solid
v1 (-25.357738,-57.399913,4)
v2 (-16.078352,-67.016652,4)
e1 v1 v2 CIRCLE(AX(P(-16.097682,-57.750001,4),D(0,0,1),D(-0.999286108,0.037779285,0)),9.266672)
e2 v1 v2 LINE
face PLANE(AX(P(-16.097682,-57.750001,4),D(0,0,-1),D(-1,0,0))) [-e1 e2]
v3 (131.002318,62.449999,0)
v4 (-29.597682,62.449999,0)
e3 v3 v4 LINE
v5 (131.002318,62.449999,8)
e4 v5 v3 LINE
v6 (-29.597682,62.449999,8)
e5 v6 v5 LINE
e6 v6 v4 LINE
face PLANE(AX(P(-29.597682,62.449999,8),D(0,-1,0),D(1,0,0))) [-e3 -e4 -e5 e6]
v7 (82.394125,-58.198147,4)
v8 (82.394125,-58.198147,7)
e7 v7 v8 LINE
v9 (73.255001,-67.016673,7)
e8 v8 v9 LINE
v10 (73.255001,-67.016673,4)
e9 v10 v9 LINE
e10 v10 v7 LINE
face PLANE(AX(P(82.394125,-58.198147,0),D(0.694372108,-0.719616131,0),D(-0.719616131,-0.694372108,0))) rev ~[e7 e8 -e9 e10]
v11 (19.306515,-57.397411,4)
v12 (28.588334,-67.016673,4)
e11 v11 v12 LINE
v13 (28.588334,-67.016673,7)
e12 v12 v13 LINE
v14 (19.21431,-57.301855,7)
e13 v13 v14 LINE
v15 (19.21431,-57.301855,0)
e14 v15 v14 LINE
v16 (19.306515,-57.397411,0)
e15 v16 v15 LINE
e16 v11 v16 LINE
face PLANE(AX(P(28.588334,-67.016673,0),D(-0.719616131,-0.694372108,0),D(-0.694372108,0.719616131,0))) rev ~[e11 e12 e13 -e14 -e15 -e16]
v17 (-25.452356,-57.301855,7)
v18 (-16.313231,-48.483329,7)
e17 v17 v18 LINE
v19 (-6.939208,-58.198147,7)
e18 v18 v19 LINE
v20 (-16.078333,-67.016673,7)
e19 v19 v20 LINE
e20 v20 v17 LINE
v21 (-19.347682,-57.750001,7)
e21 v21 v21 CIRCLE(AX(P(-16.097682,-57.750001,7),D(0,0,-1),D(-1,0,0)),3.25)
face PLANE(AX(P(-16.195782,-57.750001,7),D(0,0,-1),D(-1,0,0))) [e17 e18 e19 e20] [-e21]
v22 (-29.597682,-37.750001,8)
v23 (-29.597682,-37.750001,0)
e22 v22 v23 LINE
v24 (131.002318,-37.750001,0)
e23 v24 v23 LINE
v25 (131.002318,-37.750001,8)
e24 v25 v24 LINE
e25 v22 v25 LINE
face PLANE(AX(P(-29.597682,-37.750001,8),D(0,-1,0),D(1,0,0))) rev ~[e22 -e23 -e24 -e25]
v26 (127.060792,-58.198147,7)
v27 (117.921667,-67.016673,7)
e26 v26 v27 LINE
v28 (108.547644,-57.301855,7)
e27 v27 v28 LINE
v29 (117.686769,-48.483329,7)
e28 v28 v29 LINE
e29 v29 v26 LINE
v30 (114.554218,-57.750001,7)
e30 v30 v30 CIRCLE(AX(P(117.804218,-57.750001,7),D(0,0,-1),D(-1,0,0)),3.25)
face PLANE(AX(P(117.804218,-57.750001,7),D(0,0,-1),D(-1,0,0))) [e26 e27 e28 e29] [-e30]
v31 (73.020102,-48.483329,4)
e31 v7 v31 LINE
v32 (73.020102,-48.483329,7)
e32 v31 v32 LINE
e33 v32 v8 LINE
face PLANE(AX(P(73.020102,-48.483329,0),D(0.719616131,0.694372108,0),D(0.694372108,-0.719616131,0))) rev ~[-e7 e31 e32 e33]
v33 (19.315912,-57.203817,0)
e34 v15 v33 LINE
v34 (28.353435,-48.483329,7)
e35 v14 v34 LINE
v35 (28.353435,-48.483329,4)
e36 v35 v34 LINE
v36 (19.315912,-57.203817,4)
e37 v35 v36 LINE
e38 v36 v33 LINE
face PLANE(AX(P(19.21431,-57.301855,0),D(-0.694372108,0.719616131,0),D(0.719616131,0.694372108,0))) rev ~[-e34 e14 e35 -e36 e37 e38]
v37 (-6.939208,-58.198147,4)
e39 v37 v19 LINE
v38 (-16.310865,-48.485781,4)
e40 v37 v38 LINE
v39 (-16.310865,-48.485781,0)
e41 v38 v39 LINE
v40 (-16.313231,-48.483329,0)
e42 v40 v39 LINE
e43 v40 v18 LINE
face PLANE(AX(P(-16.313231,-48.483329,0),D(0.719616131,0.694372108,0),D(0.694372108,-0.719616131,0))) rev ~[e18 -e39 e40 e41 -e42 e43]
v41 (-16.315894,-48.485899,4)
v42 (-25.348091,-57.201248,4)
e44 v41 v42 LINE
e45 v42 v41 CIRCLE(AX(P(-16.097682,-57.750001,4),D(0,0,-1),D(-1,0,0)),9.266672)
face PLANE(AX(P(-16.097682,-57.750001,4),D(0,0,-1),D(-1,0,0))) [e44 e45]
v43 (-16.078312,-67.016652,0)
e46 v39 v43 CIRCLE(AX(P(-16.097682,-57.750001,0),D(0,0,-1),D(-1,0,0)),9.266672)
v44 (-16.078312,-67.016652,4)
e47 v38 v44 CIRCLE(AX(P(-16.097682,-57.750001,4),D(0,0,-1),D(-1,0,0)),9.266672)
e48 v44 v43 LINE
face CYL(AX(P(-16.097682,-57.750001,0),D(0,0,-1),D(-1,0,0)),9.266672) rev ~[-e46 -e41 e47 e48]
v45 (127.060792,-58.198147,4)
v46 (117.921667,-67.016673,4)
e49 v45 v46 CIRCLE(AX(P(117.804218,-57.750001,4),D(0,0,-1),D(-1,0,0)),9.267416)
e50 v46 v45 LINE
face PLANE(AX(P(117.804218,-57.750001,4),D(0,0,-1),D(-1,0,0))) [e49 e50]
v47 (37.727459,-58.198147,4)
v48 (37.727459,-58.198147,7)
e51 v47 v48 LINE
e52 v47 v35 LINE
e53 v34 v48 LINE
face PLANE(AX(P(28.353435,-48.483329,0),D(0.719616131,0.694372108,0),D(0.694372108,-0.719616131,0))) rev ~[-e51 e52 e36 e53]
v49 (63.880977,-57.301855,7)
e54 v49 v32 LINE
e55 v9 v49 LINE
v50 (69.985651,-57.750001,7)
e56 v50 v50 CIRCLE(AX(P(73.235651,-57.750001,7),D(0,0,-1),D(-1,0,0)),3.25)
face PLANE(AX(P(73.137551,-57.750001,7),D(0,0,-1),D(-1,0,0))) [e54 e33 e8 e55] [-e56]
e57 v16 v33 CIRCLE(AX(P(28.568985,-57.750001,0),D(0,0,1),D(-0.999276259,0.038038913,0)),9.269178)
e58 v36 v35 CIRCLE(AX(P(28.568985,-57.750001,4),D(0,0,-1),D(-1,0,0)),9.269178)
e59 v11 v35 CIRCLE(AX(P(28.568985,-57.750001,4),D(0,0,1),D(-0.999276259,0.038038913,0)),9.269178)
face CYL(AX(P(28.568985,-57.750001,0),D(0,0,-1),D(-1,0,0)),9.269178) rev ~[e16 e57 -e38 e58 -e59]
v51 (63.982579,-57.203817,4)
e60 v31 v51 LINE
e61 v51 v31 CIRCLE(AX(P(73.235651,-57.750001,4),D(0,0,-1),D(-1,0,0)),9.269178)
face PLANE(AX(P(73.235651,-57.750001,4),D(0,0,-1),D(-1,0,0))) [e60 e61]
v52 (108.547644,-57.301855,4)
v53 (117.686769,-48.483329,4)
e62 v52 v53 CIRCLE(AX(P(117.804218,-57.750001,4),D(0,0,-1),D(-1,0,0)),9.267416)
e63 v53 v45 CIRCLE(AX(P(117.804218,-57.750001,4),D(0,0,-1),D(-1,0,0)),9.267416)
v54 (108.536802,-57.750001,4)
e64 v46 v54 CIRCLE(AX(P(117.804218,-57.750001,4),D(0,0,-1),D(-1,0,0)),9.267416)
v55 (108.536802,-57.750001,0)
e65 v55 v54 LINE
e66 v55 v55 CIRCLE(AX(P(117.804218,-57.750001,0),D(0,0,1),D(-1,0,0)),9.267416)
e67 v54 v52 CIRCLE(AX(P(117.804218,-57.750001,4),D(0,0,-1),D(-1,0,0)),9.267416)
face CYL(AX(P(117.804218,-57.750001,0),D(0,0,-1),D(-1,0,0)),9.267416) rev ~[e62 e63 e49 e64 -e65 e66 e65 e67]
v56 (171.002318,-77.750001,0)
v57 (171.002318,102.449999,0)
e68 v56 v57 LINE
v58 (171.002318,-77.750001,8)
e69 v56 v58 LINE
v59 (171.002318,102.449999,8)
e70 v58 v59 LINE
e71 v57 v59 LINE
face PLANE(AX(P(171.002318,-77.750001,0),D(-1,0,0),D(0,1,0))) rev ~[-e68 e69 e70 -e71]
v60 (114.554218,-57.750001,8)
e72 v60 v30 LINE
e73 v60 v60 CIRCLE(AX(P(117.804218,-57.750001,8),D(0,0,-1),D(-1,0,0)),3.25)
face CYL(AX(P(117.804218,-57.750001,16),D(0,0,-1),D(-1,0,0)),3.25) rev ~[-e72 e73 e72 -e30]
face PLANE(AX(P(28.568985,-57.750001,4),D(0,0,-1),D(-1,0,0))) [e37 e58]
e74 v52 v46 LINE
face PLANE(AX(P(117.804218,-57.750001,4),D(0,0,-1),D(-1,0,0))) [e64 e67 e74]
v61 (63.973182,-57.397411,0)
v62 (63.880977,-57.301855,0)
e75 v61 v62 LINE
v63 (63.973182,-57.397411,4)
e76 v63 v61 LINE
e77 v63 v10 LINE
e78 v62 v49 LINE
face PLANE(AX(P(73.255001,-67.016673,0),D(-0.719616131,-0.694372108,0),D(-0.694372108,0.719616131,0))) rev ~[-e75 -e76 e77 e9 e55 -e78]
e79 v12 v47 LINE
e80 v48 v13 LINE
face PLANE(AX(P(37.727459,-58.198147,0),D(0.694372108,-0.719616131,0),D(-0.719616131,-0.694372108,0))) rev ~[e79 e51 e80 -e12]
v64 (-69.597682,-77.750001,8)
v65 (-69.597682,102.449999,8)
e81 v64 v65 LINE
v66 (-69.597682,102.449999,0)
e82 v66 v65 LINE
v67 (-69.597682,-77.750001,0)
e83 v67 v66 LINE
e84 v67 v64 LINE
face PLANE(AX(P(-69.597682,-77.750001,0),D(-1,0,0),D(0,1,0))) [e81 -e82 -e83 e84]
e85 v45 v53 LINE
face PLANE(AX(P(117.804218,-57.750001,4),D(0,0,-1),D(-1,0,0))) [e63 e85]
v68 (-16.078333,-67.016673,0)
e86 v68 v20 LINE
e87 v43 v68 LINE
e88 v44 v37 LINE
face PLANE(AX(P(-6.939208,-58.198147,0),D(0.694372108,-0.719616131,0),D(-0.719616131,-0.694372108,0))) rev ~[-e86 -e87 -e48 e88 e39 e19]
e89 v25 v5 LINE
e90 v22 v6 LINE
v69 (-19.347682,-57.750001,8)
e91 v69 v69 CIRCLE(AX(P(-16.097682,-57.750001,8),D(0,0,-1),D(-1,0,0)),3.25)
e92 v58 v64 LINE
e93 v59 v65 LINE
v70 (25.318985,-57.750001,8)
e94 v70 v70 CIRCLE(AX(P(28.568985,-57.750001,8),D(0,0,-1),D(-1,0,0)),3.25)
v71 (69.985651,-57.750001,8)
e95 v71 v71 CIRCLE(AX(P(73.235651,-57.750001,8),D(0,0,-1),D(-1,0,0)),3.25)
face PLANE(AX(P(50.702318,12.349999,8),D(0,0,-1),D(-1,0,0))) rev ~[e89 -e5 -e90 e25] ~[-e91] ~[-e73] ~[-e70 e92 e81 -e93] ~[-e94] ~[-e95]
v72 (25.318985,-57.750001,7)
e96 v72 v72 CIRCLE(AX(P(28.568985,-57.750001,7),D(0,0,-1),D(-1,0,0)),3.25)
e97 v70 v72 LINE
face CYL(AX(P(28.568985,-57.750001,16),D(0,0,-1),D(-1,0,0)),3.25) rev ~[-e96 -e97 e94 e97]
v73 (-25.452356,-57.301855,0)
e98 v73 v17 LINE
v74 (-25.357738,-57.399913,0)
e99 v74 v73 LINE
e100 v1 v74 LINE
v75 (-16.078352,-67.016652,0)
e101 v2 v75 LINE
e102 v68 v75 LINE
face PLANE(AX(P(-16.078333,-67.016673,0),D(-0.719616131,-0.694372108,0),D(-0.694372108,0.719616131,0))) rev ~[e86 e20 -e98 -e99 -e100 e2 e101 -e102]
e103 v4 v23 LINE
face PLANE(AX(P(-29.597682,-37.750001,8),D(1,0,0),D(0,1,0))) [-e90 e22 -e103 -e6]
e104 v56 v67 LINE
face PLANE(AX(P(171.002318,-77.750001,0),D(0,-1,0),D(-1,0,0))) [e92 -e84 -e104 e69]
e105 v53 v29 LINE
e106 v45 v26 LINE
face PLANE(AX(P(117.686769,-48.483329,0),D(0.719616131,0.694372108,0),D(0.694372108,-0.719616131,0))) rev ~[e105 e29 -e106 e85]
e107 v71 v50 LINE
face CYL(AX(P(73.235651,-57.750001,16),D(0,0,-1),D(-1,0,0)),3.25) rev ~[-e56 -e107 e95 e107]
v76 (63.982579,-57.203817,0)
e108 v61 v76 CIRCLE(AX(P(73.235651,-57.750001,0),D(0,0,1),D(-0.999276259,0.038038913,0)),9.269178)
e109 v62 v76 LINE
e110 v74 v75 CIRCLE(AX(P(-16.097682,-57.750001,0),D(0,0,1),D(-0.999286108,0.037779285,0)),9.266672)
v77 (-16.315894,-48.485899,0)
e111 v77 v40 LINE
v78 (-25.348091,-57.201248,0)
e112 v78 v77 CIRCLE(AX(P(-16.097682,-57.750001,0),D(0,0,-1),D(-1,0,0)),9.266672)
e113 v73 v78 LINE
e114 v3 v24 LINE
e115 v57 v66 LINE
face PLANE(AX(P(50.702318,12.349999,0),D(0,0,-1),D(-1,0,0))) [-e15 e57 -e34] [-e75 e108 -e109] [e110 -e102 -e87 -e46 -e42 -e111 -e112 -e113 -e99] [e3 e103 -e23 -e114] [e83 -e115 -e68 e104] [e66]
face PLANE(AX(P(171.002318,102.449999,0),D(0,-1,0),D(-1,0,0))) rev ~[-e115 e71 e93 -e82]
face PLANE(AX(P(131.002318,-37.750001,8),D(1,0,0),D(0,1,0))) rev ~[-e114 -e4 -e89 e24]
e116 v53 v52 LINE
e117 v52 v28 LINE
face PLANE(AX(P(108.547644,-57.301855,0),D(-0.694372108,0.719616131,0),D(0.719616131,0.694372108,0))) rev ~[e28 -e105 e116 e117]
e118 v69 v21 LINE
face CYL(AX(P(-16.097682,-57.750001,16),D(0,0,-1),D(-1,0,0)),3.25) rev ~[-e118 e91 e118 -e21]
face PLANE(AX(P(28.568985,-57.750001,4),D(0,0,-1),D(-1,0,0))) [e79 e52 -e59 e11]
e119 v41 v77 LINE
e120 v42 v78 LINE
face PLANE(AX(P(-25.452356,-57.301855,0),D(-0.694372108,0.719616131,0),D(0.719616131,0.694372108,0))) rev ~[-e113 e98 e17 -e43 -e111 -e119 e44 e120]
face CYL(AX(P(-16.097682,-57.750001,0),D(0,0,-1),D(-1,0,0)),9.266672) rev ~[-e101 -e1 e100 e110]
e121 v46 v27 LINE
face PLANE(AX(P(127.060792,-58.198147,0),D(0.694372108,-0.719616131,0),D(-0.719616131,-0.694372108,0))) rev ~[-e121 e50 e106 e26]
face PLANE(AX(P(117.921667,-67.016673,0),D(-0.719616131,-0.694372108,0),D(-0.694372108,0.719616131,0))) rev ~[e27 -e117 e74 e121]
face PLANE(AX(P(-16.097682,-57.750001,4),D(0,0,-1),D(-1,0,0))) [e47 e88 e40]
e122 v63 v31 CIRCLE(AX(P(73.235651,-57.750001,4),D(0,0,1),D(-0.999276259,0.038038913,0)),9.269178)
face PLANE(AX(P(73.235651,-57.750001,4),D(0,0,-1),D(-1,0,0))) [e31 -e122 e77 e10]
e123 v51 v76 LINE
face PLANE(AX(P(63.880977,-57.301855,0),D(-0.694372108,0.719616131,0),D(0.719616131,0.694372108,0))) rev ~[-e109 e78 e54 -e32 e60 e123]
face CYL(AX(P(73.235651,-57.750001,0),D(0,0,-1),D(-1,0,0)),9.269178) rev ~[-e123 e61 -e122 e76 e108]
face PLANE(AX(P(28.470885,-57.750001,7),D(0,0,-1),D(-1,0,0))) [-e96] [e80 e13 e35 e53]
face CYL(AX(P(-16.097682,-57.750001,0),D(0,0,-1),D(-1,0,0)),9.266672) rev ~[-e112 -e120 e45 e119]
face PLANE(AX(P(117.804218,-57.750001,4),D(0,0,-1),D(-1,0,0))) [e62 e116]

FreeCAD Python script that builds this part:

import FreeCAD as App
import Part
import Sketcher
from FreeCAD import Vector
Q = App.Units.Quantity


def add_polygon(sketch, points):
    """Adds a closed chain of lines whose ends are joined by coincident constraints."""
    first, n = sketch.GeometryCount, len(points)
    for a, b in zip(points, points[1:] + points[:1]):
        sketch.addGeometry(Part.LineSegment(App.Vector(*a, 0), App.Vector(*b, 0)), False)
    for i in range(n):
        sketch.addConstraint(Sketcher.Constraint("Coincident", first + i, 2, first + (i + 1) % n, 1))

doc = App.newDocument("Part")
body = doc.addObject("PartDesign::Body", "Body")

sketch1 = body.newObject("Sketcher::SketchObject", "Sketch")
sketch1.AttachmentSupport = (doc.getObject("XY_Plane"), [""])
sketch1.MapMode = "FlatFace"
add_polygon(sketch1, [(171, 102), (171, -78), (-70, -78), (-70, 102)])
sketch1.addConstraint([
    Sketcher.Constraint("Vertical", 0),
    Sketcher.Constraint("Horizontal", 1),
    Sketcher.Constraint("Vertical", 2),
    Sketcher.Constraint("Horizontal", 3),
    Sketcher.Constraint("DistanceX", 1, 2, 1, 1, Q("240.6 mm")),
    Sketcher.Constraint("DistanceY", 0, 2, 0, 1, Q("180.2 mm")),
    Sketcher.Constraint("DistanceY", 0, 2, -1, 1, Q("77.750001 mm")),
    Sketcher.Constraint("DistanceX", -1, 1, 0, 2, Q("171.002318 mm")),
])
pad1 = body.newObject("PartDesign::Pad", "Pad")
pad1.Profile = sketch1
pad1.Length = 8

sketch2 = body.newObject("Sketcher::SketchObject", "Sketch001")
sketch2.AttachmentSupport = (doc.getObject("XY_Plane"), [""])
sketch2.MapMode = "FlatFace"
sketch2.AttachmentOffset = App.Placement(Vector(0, 0, 8), App.Rotation())
add_polygon(sketch2, [(-30, 62), (-30, -38), (131, -38), (131, 62)])
sketch2.addConstraint([
    Sketcher.Constraint("Vertical", 0),
    Sketcher.Constraint("Horizontal", 1),
    Sketcher.Constraint("Vertical", 2),
    Sketcher.Constraint("Horizontal", 3),
    Sketcher.Constraint("DistanceX", 1, 1, 1, 2, Q("160.6 mm")),
    Sketcher.Constraint("DistanceY", 0, 2, 0, 1, Q("100.2 mm")),
    Sketcher.Constraint("DistanceY", 0, 2, -1, 1, Q("37.750001 mm")),
    Sketcher.Constraint("DistanceX", 0, 2, -1, 1, Q("29.597682 mm")),
])
pocket1 = body.newObject("PartDesign::Pocket", "Pocket")
pocket1.Profile = sketch2
pocket1.Type = "ThroughAll"

sketch3 = body.newObject("Sketcher::SketchObject", "Sketch002")
sketch3.AttachmentSupport = (doc.getObject("XY_Plane"), [""])
sketch3.MapMode = "FlatFace"
add_polygon(sketch3, [(118, -48), (127, -58), (118, -67), (109, -57)])
sketch3.addConstraint([
    Sketcher.Constraint("Perpendicular", 0, 1),
    Sketcher.Constraint("Perpendicular", 1, 2),
    Sketcher.Constraint("Perpendicular", 2, 3),
    Sketcher.Constraint("Distance", 0, Q("13.5 mm")),
    Sketcher.Constraint("Distance", 1, Q("12.7 mm")),
    Sketcher.Constraint("DistanceX", 3, 2, 1, 2, Q("0.234899 mm")),
    Sketcher.Constraint("DistanceX", -1, 1, 3, 2, Q("117.686769 mm")),
    Sketcher.Constraint("DistanceY", 3, 2, -1, 1, Q("48.483329 mm")),
])
pocket2 = body.newObject("PartDesign::Pocket", "Pocket001")
pocket2.Profile = sketch3
pocket2.Length = 7
pocket2.Reversed = True

sketch4 = body.newObject("Sketcher::SketchObject", "Sketch003")
sketch4.AttachmentSupport = (doc.getObject("XY_Plane"), [""])
sketch4.MapMode = "FlatFace"
add_polygon(sketch4, [(-7, -58), (-16, -67), (-25, -57), (-16, -48)])
sketch4.addConstraint([
    Sketcher.Constraint("Perpendicular", 0, 1),
    Sketcher.Constraint("Perpendicular", 1, 2),
    Sketcher.Constraint("Perpendicular", 2, 3),
    Sketcher.Constraint("Distance", 0, Q("12.7 mm")),
    Sketcher.Constraint("Distance", 1, Q("13.5 mm")),
    Sketcher.Constraint("DistanceX", 2, 2, 0, 2, Q("0.234899 mm")),
    Sketcher.Constraint("DistanceX", 2, 2, -1, 1, Q("16.313231 mm")),
    Sketcher.Constraint("DistanceY", 2, 2, -1, 1, Q("48.483329 mm")),
])
pocket3 = body.newObject("PartDesign::Pocket", "Pocket002")
pocket3.Profile = sketch4
pocket3.Length = 7
pocket3.Reversed = True

sketch5 = body.newObject("Sketcher::SketchObject", "Sketch004")
sketch5.AttachmentSupport = (doc.getObject("XY_Plane"), [""])
sketch5.MapMode = "FlatFace"
add_polygon(sketch5, [(38, -58), (29, -67), (19, -57), (28, -48)])
sketch5.addConstraint([
    Sketcher.Constraint("Perpendicular", 0, 1),
    Sketcher.Constraint("Perpendicular", 1, 2),
    Sketcher.Constraint("Perpendicular", 2, 3),
    Sketcher.Constraint("Distance", 0, Q("12.7 mm")),
    Sketcher.Constraint("Distance", 1, Q("13.5 mm")),
    Sketcher.Constraint("DistanceX", 2, 2, 0, 2, Q("0.234899 mm")),
    Sketcher.Constraint("DistanceX", -1, 1, 1, 2, Q("19.21431 mm")),
    Sketcher.Constraint("DistanceY", 2, 2, -1, 1, Q("48.483329 mm")),
])
pocket4 = body.newObject("PartDesign::Pocket", "Pocket003")
pocket4.Profile = sketch5
pocket4.Length = 7
pocket4.Reversed = True

sketch6 = body.newObject("Sketcher::SketchObject", "Sketch005")
sketch6.AttachmentSupport = (doc.getObject("XY_Plane"), [""])
sketch6.MapMode = "FlatFace"
add_polygon(sketch6, [(82, -58), (73, -67), (64, -57), (73, -48)])
sketch6.addConstraint([
    Sketcher.Constraint("Perpendicular", 0, 1),
    Sketcher.Constraint("Perpendicular", 1, 2),
    Sketcher.Constraint("Perpendicular", 2, 3),
    Sketcher.Constraint("Distance", 0, Q("12.7 mm")),
    Sketcher.Constraint("Distance", 1, Q("13.5 mm")),
    Sketcher.Constraint("DistanceX", -1, 1, 0, 2, Q("73.255001 mm")),
    Sketcher.Constraint("DistanceX", 2, 2, 0, 2, Q("0.234899 mm")),
    Sketcher.Constraint("DistanceY", 2, 2, -1, 1, Q("48.483329 mm")),
])
pocket5 = body.newObject("PartDesign::Pocket", "Pocket004")
pocket5.Profile = sketch6
pocket5.Length = 7
pocket5.Reversed = True

sketch7 = body.newObject("Sketcher::SketchObject", "Sketch006")
sketch7.AttachmentSupport = (doc.getObject("XY_Plane"), [""])
sketch7.MapMode = "FlatFace"
sketch7.AttachmentOffset = App.Placement(Vector(0, 0, 8), App.Rotation())
sketch7.addGeometry([
    Part.Circle(Vector(117.8, -57.8, 0), Vector(0, 0, 1), 3.2),
    Part.Circle(Vector(-16.1, -57.8, 0), Vector(0, 0, 1), 3.2),
    Part.Circle(Vector(28.6, -57.8, 0), Vector(0, 0, 1), 3.2),
    Part.Circle(Vector(73.2, -57.8, 0), Vector(0, 0, 1), 3.2),
], False)
sketch7.addConstraint([
    Sketcher.Constraint("Equal", 0, 1),
    Sketcher.Constraint("Equal", 1, 2),
    Sketcher.Constraint("Equal", 2, 3),
    Sketcher.Constraint("Horizontal", 0, 3, 1, 3),
    Sketcher.Constraint("Horizontal", 1, 3, 2, 3),
    Sketcher.Constraint("Horizontal", 2, 3, 3, 3),
    Sketcher.Constraint("Diameter", 0, Q("6.5 mm")),
    Sketcher.Constraint("DistanceY", 0, 3, -1, 1, Q("57.750001 mm")),
    Sketcher.Constraint("DistanceX", 1, 3, 0, 3, Q("133.9019 mm")),
    Sketcher.Constraint("DistanceX", 1, 3, -1, 1, Q("16.097682 mm")),
    Sketcher.Constraint("DistanceX", -1, 1, 3, 3, Q("73.235651 mm")),
    Sketcher.Constraint("DistanceX", -1, 1, 2, 3, Q("28.568985 mm")),
])
doc.recompute()
hole = body.newObject("PartDesign::Hole", "Hole")
hole.Profile = sketch7
hole.ThreadType = "None"
hole.Diameter = 6.5
hole.DepthType = "Dimension"
hole.Depth = 8
hole.DrillPoint = "Flat"

sketch8 = body.newObject("Sketcher::SketchObject", "Sketch007")
sketch8.AttachmentSupport = (doc.getObject("XY_Plane"), [""])
sketch8.MapMode = "FlatFace"
sketch8.addGeometry([
    Part.Circle(Vector(118, -58, 0), Vector(0, 0, 1), 9),
    Part.Circle(Vector(73, -58, 0), Vector(0, 0, 1), 9),
    Part.Circle(Vector(29, -58, 0), Vector(0, 0, 1), 9),
    Part.Circle(Vector(-16, -58, 0), Vector(0, 0, 1), 9),
], False)
sketch8.addConstraint([
    Sketcher.Constraint("Equal", 1, 2),
    Sketcher.Constraint("Horizontal", 0, 3, 1, 3),
    Sketcher.Constraint("Horizontal", 1, 3, 2, 3),
    Sketcher.Constraint("Horizontal", 2, 3, 3, 3),
    Sketcher.Constraint("DistanceY", 0, 3, -1, 1, Q("57.750001 mm")),
    Sketcher.Constraint("Diameter", 0, Q("18.534832 mm")),
    Sketcher.Constraint("Diameter", 1, Q("18.538357 mm")),
    Sketcher.Constraint("Diameter", 3, Q("18.533344 mm")),
    Sketcher.Constraint("DistanceX", 3, 3, 0, 3, Q("133.9019 mm")),
    Sketcher.Constraint("DistanceX", -1, 1, 1, 3, Q("73.235651 mm")),
    Sketcher.Constraint("DistanceX", 3, 3, -1, 1, Q("16.097682 mm")),
    Sketcher.Constraint("DistanceX", -1, 1, 2, 3, Q("28.568985 mm")),
])
pocket6 = body.newObject("PartDesign::Pocket", "Pocket005")
pocket6.Profile = sketch8
pocket6.Length = 4
pocket6.Reversed = True

doc.recompute()
